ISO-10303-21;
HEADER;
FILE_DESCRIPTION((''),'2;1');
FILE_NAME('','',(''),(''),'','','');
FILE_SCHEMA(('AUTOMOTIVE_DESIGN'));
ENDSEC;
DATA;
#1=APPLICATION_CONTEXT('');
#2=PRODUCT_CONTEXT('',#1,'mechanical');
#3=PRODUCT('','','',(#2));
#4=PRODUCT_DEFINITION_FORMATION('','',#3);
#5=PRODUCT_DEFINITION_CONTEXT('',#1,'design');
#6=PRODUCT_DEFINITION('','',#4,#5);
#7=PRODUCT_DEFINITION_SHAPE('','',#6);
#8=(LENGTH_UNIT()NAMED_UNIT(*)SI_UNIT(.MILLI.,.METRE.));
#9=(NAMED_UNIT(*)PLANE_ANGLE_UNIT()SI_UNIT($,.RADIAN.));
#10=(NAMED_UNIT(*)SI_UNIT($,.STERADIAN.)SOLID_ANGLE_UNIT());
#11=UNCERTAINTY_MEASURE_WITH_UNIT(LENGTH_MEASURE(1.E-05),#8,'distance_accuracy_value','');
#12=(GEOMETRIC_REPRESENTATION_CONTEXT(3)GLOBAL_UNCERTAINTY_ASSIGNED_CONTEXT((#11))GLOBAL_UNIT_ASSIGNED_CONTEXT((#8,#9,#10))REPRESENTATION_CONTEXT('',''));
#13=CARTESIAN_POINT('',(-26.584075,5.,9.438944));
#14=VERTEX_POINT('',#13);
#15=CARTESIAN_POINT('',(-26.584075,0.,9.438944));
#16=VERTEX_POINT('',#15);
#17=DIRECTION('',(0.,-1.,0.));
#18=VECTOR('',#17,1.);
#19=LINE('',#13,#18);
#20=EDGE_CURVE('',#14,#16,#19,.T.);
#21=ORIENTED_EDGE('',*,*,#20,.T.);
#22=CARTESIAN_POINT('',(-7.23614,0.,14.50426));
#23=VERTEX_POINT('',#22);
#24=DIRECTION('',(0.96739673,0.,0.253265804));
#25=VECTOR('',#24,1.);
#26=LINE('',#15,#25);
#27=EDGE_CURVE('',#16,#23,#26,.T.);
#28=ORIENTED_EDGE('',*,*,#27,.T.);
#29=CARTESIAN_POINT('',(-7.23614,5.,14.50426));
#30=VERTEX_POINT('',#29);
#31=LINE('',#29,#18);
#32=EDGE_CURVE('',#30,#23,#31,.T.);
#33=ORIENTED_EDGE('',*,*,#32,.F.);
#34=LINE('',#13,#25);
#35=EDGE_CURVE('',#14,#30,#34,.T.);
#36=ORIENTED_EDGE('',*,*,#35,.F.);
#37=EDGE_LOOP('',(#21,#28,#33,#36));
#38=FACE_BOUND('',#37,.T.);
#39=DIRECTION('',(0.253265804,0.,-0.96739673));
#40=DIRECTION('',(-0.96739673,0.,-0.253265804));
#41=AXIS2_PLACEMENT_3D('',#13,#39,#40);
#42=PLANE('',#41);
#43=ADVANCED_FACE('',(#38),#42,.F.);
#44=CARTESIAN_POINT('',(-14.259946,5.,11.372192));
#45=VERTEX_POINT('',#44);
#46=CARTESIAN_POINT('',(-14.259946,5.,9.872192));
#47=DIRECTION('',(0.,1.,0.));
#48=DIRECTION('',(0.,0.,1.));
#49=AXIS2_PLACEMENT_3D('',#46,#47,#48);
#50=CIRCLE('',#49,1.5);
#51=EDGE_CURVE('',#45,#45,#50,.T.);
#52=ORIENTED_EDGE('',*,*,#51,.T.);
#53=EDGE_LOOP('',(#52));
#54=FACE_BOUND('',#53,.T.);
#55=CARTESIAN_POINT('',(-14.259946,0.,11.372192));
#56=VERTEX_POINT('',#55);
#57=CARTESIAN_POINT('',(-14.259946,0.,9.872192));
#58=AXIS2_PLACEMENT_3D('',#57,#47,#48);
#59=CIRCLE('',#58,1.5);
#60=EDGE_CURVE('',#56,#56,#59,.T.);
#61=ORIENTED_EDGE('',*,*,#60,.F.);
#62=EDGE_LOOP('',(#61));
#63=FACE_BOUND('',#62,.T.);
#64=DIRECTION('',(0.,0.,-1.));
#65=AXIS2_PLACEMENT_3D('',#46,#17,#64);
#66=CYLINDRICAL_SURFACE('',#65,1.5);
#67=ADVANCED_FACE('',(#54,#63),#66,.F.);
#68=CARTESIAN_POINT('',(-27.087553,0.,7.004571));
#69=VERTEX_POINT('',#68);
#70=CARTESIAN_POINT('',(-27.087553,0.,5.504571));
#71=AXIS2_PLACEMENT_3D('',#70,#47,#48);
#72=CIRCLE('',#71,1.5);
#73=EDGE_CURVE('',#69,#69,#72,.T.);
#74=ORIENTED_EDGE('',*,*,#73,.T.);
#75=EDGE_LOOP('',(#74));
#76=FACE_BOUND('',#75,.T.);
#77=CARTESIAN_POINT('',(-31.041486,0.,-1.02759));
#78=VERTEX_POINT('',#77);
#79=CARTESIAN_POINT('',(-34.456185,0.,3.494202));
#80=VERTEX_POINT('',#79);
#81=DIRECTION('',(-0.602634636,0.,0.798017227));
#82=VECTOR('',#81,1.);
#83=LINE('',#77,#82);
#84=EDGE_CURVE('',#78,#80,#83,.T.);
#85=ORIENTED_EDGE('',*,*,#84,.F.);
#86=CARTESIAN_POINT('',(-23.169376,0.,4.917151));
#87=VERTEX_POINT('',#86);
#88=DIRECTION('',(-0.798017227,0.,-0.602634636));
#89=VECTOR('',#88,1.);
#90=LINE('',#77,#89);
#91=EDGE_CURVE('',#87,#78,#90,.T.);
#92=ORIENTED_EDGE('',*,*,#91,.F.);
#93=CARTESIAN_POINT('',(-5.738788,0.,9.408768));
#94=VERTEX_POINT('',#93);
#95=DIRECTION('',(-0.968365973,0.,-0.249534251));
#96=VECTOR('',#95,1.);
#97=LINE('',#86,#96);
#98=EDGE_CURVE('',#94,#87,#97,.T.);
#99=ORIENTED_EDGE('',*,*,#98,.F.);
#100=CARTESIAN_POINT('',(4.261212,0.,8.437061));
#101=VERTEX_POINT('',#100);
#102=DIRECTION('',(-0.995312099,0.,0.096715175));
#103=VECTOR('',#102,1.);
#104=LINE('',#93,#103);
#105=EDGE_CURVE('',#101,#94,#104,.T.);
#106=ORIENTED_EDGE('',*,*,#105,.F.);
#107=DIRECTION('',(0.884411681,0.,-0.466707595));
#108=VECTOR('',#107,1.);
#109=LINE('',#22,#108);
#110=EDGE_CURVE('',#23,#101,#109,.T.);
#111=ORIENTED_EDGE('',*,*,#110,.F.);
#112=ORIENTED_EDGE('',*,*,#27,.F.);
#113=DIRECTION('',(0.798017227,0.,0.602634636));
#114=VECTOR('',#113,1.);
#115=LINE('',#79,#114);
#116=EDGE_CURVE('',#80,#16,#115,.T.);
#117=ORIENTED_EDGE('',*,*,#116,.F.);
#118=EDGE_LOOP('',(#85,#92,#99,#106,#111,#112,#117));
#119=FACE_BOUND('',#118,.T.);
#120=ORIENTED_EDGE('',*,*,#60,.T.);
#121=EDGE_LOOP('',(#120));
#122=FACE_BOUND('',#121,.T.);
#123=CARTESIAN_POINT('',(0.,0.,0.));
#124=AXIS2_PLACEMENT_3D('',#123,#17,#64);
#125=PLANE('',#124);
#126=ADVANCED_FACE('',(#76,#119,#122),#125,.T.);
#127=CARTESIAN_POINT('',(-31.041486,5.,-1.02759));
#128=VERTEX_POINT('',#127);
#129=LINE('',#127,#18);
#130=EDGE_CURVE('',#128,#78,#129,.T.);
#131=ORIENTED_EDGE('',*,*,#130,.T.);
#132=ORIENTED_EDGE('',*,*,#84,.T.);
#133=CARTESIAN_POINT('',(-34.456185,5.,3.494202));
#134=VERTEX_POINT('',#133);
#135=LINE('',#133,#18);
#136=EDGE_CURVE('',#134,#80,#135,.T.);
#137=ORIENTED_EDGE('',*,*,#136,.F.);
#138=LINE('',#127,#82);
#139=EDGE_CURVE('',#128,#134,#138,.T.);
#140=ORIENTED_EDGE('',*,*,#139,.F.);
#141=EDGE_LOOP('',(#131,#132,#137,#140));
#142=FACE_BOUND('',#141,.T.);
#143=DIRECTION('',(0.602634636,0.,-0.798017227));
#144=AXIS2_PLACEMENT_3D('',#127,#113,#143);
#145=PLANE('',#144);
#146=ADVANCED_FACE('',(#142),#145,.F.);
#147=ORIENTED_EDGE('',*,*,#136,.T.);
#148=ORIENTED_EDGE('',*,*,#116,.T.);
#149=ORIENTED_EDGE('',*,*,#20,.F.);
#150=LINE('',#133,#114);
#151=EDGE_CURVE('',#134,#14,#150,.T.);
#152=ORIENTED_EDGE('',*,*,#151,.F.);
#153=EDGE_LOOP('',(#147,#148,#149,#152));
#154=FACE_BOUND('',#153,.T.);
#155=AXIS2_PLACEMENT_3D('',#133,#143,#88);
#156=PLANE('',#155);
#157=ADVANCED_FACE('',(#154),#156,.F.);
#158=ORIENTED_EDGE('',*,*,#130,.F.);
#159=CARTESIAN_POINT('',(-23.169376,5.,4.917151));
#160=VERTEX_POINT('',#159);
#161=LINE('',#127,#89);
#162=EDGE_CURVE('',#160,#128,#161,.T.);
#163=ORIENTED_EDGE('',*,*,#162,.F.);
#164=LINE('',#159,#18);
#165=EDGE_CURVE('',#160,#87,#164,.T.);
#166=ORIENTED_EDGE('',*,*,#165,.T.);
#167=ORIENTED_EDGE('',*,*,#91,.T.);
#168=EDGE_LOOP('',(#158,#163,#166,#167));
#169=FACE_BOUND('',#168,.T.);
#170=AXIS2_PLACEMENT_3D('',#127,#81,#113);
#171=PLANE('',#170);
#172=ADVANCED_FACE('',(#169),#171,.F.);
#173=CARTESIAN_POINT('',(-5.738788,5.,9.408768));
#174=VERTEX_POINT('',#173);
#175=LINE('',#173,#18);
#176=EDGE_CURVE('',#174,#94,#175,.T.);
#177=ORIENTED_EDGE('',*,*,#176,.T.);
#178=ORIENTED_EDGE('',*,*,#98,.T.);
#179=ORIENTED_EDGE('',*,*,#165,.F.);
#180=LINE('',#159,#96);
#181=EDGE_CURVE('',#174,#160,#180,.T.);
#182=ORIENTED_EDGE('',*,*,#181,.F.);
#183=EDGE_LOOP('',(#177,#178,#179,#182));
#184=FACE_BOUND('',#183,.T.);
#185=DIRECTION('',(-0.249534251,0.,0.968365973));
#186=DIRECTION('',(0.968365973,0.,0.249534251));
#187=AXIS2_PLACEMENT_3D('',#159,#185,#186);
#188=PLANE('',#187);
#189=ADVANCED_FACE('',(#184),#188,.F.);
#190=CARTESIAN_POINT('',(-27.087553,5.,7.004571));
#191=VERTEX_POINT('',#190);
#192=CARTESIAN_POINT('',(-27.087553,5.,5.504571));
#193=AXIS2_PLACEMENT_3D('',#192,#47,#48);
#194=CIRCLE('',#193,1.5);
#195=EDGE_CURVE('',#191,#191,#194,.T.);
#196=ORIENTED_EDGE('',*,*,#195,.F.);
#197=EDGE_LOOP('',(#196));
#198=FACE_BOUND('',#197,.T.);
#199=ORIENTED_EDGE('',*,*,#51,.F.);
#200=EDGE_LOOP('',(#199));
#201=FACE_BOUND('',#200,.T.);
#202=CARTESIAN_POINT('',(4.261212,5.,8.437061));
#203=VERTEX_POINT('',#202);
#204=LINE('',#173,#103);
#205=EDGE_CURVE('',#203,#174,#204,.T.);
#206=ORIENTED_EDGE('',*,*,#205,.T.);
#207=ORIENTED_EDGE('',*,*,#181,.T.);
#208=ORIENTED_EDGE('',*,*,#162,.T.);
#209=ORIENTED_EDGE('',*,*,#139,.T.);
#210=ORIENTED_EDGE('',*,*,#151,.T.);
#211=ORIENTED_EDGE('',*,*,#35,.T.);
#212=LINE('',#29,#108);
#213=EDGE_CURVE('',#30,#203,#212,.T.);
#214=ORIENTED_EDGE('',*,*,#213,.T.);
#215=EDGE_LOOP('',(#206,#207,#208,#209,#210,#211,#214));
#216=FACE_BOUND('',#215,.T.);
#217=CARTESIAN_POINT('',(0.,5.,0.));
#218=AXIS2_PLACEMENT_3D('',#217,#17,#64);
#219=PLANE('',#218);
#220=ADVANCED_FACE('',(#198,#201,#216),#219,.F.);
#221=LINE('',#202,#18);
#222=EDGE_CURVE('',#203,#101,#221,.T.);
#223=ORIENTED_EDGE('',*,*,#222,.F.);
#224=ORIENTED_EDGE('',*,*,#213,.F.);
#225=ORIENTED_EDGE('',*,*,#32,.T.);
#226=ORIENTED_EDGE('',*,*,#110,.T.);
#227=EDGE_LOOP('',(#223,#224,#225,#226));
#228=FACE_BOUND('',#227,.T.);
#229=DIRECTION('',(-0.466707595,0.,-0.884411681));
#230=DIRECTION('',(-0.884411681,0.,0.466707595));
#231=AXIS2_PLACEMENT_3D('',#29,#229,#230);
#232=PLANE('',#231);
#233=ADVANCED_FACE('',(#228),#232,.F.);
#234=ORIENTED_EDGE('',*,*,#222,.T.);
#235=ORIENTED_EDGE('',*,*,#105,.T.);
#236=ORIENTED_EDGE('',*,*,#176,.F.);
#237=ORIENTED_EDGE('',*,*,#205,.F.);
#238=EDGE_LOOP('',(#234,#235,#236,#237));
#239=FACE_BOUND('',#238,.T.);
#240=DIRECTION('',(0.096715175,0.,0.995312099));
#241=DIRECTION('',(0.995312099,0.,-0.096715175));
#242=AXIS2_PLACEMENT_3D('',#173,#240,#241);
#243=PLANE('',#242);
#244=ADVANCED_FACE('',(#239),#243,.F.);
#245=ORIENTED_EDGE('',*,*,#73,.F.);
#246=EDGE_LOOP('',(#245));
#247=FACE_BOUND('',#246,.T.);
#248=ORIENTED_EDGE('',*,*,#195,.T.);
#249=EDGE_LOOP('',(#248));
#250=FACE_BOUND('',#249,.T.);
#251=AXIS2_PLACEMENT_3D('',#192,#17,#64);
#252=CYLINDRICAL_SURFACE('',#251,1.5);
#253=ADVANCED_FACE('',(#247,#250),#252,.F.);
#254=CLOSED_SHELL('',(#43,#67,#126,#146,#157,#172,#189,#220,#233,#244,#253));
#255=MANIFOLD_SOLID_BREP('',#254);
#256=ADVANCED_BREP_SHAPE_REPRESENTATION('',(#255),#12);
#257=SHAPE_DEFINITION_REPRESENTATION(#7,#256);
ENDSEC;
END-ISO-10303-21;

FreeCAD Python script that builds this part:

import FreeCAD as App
import Part
import Sketcher

doc = App.newDocument("Part")
params = doc.addObject("Spreadsheet::Sheet", "Params")
for row, (alias, value) in enumerate([
    ("sketch1_diameter", "3 mm"),
    ("sketch1_length", "20 mm"),
    ("sketch1_length2", "13 mm"),
    ("sketch1_length3", "18 mm"),
    ("pad1_length", "5 mm"),
], start=1):
    params.set(f"A{row}", alias)
    params.set(f"B{row}", "=" + value)
    params.setAlias(f"B{row}", alias)

body = doc.addObject("PartDesign::Body", "Body")

sketch1 = body.newObject("Sketcher::SketchObject", "Sketch")
sketch1.AttachmentSupport = (doc.getObject("XZ_Plane"), [""])
sketch1.MapMode = "FlatFace"
sketch1.addGeometry(Part.LineSegment(App.Vector(-34.5, 3.5, 0), App.Vector(-26.6, 9.4, 0)), False)
sketch1.addGeometry(Part.LineSegment(App.Vector(-26.6, 9.4, 0), App.Vector(-7.2, 14.5, 0)), False)
sketch1.addGeometry(Part.LineSegment(App.Vector(-7.2, 14.5, 0), App.Vector(4.3, 8.4, 0)), False)
sketch1.addGeometry(Part.LineSegment(App.Vector(4.3, 8.4, 0), App.Vector(-5.7, 9.4, 0)), False)
sketch1.addGeometry(Part.LineSegment(App.Vector(-5.7, 9.4, 0), App.Vector(-23.2, 4.9, 0)), False)
sketch1.addGeometry(Part.LineSegment(App.Vector(-23.2, 4.9, 0), App.Vector(-31, -1, 0)), False)
sketch1.addGeometry(Part.LineSegment(App.Vector(-31, -1, 0), App.Vector(-34.5, 3.5, 0)), False)
sketch1.addGeometry(Part.Circle(App.Vector(-14.3, 9.9, 0), App.Vector(0, 0, 1), 1.5), False)
sketch1.addGeometry(Part.Circle(App.Vector(-27.1, 5.5, 0), App.Vector(0, 0, 1), 1.5), False)
sketch1.addConstraint(Sketcher.Constraint("Coincident", 0, 2, 1, 1))
sketch1.addConstraint(Sketcher.Constraint("Coincident", 1, 2, 2, 1))
sketch1.addConstraint(Sketcher.Constraint("Coincident", 2, 2, 3, 1))
sketch1.addConstraint(Sketcher.Constraint("Coincident", 3, 2, 4, 1))
sketch1.addConstraint(Sketcher.Constraint("Coincident", 4, 2, 5, 1))
sketch1.addConstraint(Sketcher.Constraint("Coincident", 5, 2, 6, 1))
sketch1.addConstraint(Sketcher.Constraint("Coincident", 6, 2, 0, 1))
sketch1.addConstraint(Sketcher.Constraint("Equal", 7, 8))
sketch1.addConstraint(Sketcher.Constraint("Parallel", 0, 5))
sketch1.addConstraint(Sketcher.Constraint("Perpendicular", 5, 6))
sketch1.addConstraint(Sketcher.Constraint("Equal", 0, 5))
sketch1.addConstraint(Sketcher.Constraint("Diameter", 7, 3.0))
sketch1.addConstraint(Sketcher.Constraint("Distance", 1, 20.0))
sketch1.addConstraint(Sketcher.Constraint("Distance", 2, 13.0))
sketch1.addConstraint(Sketcher.Constraint("Distance", 4, 18.0))
sketch1.addConstraint(Sketcher.Constraint("DistanceX", 3, 2, 2, 2, 10.0))
sketch1.addConstraint(Sketcher.Constraint("Distance", 3, 10.0471))
sketch1.addConstraint(Sketcher.Constraint("DistanceY", -1, 1, 6, 2, 3.494202))
sketch1.addConstraint(Sketcher.Constraint("DistanceY", 2, 2, 1, 2, 6.067199))
sketch1.addConstraint(Sketcher.Constraint("DistanceX", 0, 2, 4, 2, 3.414699))
sketch1.addConstraint(Sketcher.Constraint("DistanceY", -1, 1, 7, 3, 9.872192))
sketch1.addConstraint(Sketcher.Constraint("DistanceY", -1, 1, 8, 3, 5.504571))
sketch1.addConstraint(Sketcher.Constraint("DistanceX", 1, 2, -1, 1, 7.23614))
sketch1.addConstraint(Sketcher.Constraint("DistanceY", -1, 1, 1, 2, 14.50426))
sketch1.addConstraint(Sketcher.Constraint("DistanceY", -1, 1, 4, 2, 4.917151))
sketch1.addConstraint(Sketcher.Constraint("DistanceX", 8, 3, 0, 2, 0.503478))
sketch1.addConstraint(Sketcher.Constraint("DistanceX", 0, 2, 7, 3, 12.324129))
sketch1.setExpression("Constraints[11]", "Params.sketch1_diameter")
sketch1.setExpression("Constraints[12]", "Params.sketch1_length")
sketch1.setExpression("Constraints[13]", "Params.sketch1_length2")
sketch1.setExpression("Constraints[14]", "Params.sketch1_length3")
pad1 = body.newObject("PartDesign::Pad", "Pad")
pad1.Profile = sketch1
pad1.setExpression("Length", "Params.pad1_length")
pad1.Reversed = True

doc.recompute()
